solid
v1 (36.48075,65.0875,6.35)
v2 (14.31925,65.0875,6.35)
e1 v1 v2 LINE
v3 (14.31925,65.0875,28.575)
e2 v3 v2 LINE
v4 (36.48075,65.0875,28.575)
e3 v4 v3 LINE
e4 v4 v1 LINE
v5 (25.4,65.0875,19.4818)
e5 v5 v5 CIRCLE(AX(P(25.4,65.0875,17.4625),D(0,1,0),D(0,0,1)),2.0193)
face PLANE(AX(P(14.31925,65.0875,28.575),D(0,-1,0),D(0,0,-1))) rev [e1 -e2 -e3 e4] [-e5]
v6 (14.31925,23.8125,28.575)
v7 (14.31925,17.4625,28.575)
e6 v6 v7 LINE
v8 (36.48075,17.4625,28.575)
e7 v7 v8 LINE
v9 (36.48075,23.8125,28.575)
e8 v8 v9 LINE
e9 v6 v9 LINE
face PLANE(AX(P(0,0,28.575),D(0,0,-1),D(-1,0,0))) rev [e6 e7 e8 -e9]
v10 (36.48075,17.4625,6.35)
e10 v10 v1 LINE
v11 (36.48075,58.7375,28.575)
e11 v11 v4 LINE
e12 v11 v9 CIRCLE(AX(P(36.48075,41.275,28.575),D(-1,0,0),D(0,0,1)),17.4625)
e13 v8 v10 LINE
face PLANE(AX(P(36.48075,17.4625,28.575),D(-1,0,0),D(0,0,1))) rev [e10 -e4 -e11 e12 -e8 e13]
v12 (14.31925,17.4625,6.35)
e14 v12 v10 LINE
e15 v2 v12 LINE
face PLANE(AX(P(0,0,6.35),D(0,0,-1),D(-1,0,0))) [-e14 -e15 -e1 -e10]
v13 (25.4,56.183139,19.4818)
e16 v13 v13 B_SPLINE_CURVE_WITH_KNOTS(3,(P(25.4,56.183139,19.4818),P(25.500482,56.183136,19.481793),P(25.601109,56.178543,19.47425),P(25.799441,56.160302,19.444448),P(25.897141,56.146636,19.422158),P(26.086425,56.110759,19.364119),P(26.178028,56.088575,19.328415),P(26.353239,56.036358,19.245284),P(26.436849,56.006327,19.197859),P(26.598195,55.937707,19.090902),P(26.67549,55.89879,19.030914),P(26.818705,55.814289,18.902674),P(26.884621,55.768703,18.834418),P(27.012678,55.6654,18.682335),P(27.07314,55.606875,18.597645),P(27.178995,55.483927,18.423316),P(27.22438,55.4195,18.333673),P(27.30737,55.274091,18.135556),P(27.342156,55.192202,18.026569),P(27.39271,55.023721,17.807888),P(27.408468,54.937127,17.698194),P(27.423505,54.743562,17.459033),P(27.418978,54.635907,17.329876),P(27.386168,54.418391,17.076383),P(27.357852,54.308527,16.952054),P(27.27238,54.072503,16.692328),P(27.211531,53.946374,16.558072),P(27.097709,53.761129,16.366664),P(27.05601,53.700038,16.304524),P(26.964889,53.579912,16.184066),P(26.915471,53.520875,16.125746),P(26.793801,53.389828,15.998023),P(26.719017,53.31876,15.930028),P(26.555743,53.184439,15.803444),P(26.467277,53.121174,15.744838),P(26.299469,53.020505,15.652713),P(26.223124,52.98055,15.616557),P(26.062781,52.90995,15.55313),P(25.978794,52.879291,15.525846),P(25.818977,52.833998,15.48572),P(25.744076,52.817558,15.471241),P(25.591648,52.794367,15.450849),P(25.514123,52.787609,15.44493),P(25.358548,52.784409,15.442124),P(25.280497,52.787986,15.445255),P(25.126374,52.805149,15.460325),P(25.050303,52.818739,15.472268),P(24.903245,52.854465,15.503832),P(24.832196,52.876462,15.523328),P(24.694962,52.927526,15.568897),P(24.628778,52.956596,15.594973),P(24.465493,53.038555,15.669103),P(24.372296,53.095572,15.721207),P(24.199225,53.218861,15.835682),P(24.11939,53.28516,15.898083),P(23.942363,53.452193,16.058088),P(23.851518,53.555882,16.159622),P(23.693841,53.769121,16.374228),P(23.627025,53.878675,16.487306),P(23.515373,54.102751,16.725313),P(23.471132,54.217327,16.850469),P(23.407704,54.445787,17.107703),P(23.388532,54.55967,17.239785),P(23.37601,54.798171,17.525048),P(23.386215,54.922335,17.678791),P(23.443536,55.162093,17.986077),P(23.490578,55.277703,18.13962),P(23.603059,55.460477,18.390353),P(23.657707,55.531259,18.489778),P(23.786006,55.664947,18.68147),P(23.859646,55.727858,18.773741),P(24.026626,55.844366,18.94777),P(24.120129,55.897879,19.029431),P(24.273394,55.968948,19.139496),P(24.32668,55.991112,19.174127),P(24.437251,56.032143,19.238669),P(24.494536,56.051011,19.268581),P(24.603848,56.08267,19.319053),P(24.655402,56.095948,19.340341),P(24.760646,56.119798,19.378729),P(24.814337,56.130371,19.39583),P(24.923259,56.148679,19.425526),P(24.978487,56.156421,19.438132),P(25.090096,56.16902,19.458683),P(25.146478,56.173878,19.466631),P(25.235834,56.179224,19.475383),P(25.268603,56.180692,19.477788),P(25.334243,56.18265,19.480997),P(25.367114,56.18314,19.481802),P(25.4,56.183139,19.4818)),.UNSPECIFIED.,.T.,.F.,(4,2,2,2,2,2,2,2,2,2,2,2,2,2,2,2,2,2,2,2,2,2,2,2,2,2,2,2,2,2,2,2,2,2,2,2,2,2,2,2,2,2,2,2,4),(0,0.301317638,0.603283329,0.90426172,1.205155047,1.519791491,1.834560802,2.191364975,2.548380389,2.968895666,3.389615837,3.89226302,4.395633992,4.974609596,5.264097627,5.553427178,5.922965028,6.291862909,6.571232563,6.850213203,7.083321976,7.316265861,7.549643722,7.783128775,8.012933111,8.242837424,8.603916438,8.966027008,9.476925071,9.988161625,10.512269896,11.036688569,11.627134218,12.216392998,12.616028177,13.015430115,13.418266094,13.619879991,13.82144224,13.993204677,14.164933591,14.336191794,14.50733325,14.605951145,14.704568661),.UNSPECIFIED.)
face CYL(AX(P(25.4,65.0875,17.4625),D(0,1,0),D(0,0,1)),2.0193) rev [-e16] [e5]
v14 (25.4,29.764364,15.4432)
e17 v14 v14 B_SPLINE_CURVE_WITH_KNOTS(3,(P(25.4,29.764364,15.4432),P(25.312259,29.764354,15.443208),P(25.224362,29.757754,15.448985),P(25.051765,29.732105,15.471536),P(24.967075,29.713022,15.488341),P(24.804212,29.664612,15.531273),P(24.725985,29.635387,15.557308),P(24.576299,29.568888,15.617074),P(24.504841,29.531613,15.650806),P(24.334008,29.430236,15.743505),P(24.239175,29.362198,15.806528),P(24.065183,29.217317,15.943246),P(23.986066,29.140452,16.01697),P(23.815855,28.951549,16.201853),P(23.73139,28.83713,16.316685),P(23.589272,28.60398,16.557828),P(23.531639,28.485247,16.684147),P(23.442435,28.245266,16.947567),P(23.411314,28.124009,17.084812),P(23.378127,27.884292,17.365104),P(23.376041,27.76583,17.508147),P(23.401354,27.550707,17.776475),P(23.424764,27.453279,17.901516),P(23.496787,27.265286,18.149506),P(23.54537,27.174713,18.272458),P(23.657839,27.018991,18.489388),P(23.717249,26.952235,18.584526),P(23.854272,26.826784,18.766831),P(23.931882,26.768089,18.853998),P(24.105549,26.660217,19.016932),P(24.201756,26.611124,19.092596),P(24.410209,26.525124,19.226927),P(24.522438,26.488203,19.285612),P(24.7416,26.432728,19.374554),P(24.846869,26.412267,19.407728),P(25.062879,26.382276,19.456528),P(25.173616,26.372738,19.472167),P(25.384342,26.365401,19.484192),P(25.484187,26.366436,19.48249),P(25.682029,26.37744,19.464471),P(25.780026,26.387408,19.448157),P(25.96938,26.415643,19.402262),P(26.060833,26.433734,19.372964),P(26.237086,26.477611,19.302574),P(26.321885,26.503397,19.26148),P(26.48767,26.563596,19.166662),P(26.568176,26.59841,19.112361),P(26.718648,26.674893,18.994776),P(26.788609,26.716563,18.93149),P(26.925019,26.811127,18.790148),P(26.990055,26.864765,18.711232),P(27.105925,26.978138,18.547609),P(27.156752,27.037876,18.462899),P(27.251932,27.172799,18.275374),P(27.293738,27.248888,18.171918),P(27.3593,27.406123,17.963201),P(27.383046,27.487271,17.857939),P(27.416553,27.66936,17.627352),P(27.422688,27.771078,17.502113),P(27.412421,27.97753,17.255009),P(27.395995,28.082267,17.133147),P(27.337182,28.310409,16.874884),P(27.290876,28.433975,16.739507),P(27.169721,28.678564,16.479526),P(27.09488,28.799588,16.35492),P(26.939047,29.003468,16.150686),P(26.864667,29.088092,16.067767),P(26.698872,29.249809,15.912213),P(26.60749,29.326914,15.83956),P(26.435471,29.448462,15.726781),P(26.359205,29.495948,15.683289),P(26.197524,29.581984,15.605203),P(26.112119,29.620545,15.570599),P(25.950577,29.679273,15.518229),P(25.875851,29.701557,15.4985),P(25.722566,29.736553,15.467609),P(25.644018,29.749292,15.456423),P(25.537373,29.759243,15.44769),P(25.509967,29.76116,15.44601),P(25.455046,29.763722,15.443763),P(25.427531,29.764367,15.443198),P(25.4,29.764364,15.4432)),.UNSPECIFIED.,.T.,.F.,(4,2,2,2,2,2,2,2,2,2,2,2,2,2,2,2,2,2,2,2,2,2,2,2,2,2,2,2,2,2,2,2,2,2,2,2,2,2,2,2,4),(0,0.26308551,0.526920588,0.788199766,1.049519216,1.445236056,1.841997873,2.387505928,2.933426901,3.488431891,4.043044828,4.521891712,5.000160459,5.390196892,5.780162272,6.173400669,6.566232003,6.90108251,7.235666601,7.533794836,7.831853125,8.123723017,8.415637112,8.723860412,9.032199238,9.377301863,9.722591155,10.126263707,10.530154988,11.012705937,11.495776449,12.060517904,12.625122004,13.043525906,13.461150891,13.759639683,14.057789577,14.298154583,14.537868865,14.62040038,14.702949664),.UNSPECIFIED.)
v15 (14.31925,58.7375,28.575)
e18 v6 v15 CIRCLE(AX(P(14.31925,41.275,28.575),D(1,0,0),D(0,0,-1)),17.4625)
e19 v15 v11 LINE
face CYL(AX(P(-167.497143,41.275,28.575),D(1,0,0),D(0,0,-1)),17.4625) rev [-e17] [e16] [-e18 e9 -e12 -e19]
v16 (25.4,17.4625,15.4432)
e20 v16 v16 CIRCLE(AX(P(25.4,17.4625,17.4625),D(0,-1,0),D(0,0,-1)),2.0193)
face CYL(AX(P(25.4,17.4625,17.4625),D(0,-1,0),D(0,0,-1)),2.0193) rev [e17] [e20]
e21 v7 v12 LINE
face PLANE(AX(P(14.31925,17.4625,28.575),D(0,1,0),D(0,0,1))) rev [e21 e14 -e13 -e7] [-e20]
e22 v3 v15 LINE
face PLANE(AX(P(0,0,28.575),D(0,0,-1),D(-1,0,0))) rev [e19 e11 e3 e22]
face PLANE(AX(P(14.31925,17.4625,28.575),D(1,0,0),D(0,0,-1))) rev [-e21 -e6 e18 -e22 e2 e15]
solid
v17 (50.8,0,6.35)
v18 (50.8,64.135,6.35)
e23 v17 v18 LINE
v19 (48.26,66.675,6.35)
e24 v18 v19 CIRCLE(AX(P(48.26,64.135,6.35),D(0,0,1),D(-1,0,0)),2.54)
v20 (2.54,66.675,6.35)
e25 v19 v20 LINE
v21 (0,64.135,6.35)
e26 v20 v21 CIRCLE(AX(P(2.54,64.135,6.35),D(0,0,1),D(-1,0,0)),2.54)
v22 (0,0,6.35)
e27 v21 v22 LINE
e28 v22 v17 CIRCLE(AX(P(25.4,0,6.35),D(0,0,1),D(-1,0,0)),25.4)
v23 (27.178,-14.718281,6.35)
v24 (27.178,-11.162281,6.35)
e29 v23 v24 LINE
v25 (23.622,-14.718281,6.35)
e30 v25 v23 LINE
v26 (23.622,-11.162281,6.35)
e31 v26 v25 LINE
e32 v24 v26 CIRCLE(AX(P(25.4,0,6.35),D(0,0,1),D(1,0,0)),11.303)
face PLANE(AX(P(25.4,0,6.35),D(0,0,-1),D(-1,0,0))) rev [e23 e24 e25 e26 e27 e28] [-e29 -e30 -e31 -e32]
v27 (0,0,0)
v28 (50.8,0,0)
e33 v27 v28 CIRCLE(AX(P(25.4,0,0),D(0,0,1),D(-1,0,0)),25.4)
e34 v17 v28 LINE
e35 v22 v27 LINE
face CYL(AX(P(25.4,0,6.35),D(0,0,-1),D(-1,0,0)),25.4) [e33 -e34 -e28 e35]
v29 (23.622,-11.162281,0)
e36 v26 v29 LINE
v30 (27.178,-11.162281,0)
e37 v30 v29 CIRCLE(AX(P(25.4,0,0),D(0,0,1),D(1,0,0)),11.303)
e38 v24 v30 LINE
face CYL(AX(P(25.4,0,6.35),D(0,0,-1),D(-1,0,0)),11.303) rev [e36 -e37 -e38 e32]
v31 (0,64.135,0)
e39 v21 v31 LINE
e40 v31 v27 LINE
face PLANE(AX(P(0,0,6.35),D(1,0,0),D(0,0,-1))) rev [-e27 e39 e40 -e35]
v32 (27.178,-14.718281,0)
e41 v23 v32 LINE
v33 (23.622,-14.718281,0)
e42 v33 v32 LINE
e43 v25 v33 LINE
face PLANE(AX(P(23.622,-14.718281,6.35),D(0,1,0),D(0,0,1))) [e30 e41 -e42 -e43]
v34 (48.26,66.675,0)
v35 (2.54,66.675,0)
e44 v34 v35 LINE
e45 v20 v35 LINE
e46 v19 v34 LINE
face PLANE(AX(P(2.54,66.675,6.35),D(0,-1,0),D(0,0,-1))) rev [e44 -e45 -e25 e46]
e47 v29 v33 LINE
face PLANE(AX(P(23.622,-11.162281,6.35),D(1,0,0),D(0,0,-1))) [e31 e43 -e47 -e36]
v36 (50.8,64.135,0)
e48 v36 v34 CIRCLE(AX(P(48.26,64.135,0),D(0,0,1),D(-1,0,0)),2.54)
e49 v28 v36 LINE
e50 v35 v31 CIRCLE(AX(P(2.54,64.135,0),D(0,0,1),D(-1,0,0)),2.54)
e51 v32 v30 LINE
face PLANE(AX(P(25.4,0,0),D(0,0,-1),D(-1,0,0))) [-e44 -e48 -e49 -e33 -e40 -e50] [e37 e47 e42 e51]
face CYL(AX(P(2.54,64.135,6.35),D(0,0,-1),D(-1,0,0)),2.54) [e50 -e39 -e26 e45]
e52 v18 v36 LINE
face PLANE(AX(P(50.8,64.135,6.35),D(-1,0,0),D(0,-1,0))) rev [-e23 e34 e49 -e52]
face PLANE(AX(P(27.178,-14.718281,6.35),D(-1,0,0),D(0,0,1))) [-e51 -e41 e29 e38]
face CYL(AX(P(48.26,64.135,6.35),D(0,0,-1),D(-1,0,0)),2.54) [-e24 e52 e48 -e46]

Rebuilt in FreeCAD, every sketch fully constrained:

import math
import FreeCAD as App
import Part
import Sketcher
Q = App.Units.Quantity


def add_polygon(sketch, points):
    """Adds a closed chain of lines whose ends are joined by coincident constraints."""
    first, n = sketch.GeometryCount, len(points)
    for a, b in zip(points, points[1:] + points[:1]):
        sketch.addGeometry(Part.LineSegment(App.Vector(*a, 0), App.Vector(*b, 0)), False)
    for i in range(n):
        sketch.addConstraint(Sketcher.Constraint("Coincident", first + i, 2, first + (i + 1) % n, 1))

doc = App.newDocument("Part")
body = doc.addObject("PartDesign::Body", "Body")

# Sketch on XY plane
sketch1 = doc.addObject("Sketcher::SketchObject", "Sketch")
body.addObject(sketch1)
sketch1.AttachmentSupport = (doc.XY_Plane, [""])
sketch1.MapMode = "FlatFace"
sketch1.addGeometry([
    Part.LineSegment(App.Vector(0, 64.1, 0), App.Vector(0, 0, 0)),  # 0
    Part.ArcOfCircle(Part.Circle(App.Vector(25.4, 0, 0), App.Vector(0, 0, 1), 25.4), math.radians(180), math.radians(360)),  # 1
    Part.LineSegment(App.Vector(50.8, 0, 0), App.Vector(50.8, 64.1, 0)),  # 2
    Part.ArcOfCircle(Part.Circle(App.Vector(48.3, 64.1, 0), App.Vector(0, 0, 1), 2.5), math.radians(0), math.radians(90)),  # 3
    Part.LineSegment(App.Vector(48.3, 66.7, 0), App.Vector(2.5, 66.7, 0)),  # 4
    Part.ArcOfCircle(Part.Circle(App.Vector(2.5, 64.1, 0), App.Vector(0, 0, 1), 2.5), math.radians(90), math.radians(180)),  # 5
    Part.ArcOfCircle(Part.Circle(App.Vector(25.4, 0, 0), App.Vector(0, 0, 1), 11.3), math.radians(-81), math.radians(261)),  # 6
    Part.LineSegment(App.Vector(27.2, -11.2, 0), App.Vector(27.2, -14.7, 0)),  # 7
    Part.LineSegment(App.Vector(27.2, -14.7, 0), App.Vector(23.6, -14.7, 0)),  # 8
    Part.LineSegment(App.Vector(23.6, -14.7, 0), App.Vector(23.6, -11.2, 0)),  # 9
], False)
sketch1.addConstraint([
    Sketcher.Constraint("Tangent", 0, 2, 1, 1),
    Sketcher.Constraint("Tangent", 1, 2, 2, 1),
    Sketcher.Constraint("Tangent", 2, 2, 3, 1),
    Sketcher.Constraint("Tangent", 3, 2, 4, 1),
    Sketcher.Constraint("Tangent", 4, 2, 5, 1),
    Sketcher.Constraint("Tangent", 5, 2, 0, 1),
    Sketcher.Constraint("Coincident", 6, 1, 7, 1),
    Sketcher.Constraint("Coincident", 7, 2, 8, 1),
    Sketcher.Constraint("Coincident", 8, 2, 9, 1),
    Sketcher.Constraint("Coincident", 9, 2, 6, 2),
    Sketcher.Constraint("Vertical", 0),
    Sketcher.Constraint("Vertical", 2),
    Sketcher.Constraint("Horizontal", 4),
    Sketcher.Constraint("Vertical", 7),
    Sketcher.Constraint("Horizontal", 8),
    Sketcher.Constraint("Vertical", 9),
    Sketcher.Constraint("Coincident", 0, 2, -1, 1),
    Sketcher.Constraint("Coincident", 6, 3, 1, 3),
    Sketcher.Constraint("Equal", 3, 5),
    Sketcher.Constraint("Horizontal", 6, 1, 9, 2),
    Sketcher.Constraint("Equal", 8, 7),
    Sketcher.Constraint("Radius", 1, Q("1 in")),
    Sketcher.Constraint("Radius", 3, Q("0.1 in")),
    Sketcher.Constraint("Radius", 6, Q("0.445 in")),
    Sketcher.Constraint("DistanceX", 8, 2, 8, 1, Q("0.14 in")),
    Sketcher.Constraint("DistanceY", 0, 2, 0, 1, Q("2.525 in")),
])
pad1 = doc.addObject("PartDesign::Pad", "Pad")
body.addObject(pad1)
pad1.Profile = sketch1
pad1.Length = Q("0.25 in")
body2 = doc.addObject("PartDesign::Body", "Body001")

# Sketch on XY plane
sketch2 = doc.addObject("Sketcher::SketchObject", "Sketch001")
body2.addObject(sketch2)
sketch2.AttachmentSupport = (doc.getObject("XY_Plane001"), [""])
sketch2.MapMode = "FlatFace"
sketch2.AttachmentOffset = App.Placement(App.Vector(0, 0, 0.25 * 25.4), App.Rotation())
add_polygon(sketch2, [(14, 65), (14, 17), (36, 17), (36, 65)])  # lines 0-3
sketch2.addConstraint([
    Sketcher.Constraint("Vertical", 0),
    Sketcher.Constraint("Horizontal", 1),
    Sketcher.Constraint("Vertical", 2),
    Sketcher.Constraint("Horizontal", 3),
    Sketcher.Constraint("DistanceY", 0, 2, 0, 1, Q("1.875 in")),
    Sketcher.Constraint("DistanceX", 1, 1, 1, 2, Q("0.8725 in")),
    Sketcher.Constraint("DistanceY", -1, 1, 0, 2, Q("0.6875 in")),
    Sketcher.Constraint("DistanceX", -1, 1, 0, 2, 14.31925),
])
pad2 = doc.addObject("PartDesign::Pad", "Pad001")
body2.addObject(pad2)
pad2.Profile = sketch2
pad2.Length = Q("0.875 in")

# Sketch on YZ plane
sketch3 = doc.addObject("Sketcher::SketchObject", "Sketch002")
body2.addObject(sketch3)
sketch3.AttachmentSupport = (doc.getObject("YZ_Plane001"), [""])
sketch3.MapMode = "FlatFace"
sketch3.AttachmentOffset = App.Placement(App.Vector(0, 0, 14.31925), App.Rotation())
sketch3.addGeometry([
    Part.ArcOfCircle(Part.Circle(App.Vector(41, 29, 0), App.Vector(0, 0, 1), 17), math.radians(180), math.radians(360)),
    Part.LineSegment(App.Vector(24, 29, 0), App.Vector(24, 592, 0)),
    Part.LineSegment(App.Vector(24, 592, 0), App.Vector(59, 592, 0)),
    Part.LineSegment(App.Vector(59, 592, 0), App.Vector(59, 29, 0)),
], False)
sketch3.addConstraint([
    Sketcher.Constraint("Tangent", 0, 1, 1, 1),
    Sketcher.Constraint("Coincident", 1, 2, 2, 1),
    Sketcher.Constraint("Coincident", 2, 2, 3, 1),
    Sketcher.Constraint("Tangent", 3, 2, 0, 2),
    Sketcher.Constraint("Vertical", 1),
    Sketcher.Constraint("Horizontal", 2),
    Sketcher.Constraint("Vertical", 3),
    Sketcher.Constraint("Radius", 0, Q("0.6875 in")),
    Sketcher.Constraint("DistanceX", -1, 1, 0, 3, Q("1.625 in")),
    Sketcher.Constraint("DistanceY", -1, 1, 0, 3, Q("1.125 in")),
    Sketcher.Constraint("DistanceY", 1, 1, 1, 2, 563.144805),
])
pocket1 = doc.addObject("PartDesign::Pocket", "Pocket")
body2.addObject(pocket1)
pocket1.Profile = sketch3
pocket1.Type = "ThroughAll"
pocket1.Midplane = True

# Sketch on YZ plane
sketch4 = doc.addObject("Sketcher::SketchObject", "Sketch003")
body2.addObject(sketch4)
sketch4.AttachmentSupport = (doc.getObject("YZ_Plane001"), [""])
sketch4.MapMode = "FlatFace"
sketch4.AttachmentOffset = App.Placement(App.Vector(0, 0, 1 * 25.4), App.Rotation())
add_polygon(sketch4, [(41.3, 17.5), (65.1, 17.5), (65.1, 19.5), (41.3, 19.5)])  # lines 0-3
sketch4.addGeometry(Part.LineSegment(App.Vector(65.1, 17.5, 0), App.Vector(41.3, 17.5, 0)), True)  # axis
sketch4.addConstraint([
    Sketcher.Constraint("Horizontal", 0),
    Sketcher.Constraint("Vertical", 1),
    Sketcher.Constraint("Horizontal", 2),
    Sketcher.Constraint("Vertical", 3),
    Sketcher.Constraint("Horizontal", 4),
    Sketcher.Constraint("Coincident", 4, 1, 0, 2),
    Sketcher.Constraint("Vertical", 2, 2, 4, 2),
    Sketcher.Constraint("DistanceX", 0, 1, 0, 2, Q("0.9375 in")),
    Sketcher.Constraint("DistanceY", 1, 1, 1, 2, Q("0.0795 in")),
    Sketcher.Constraint("DistanceX", -1, 1, 0, 2, Q("2.5625 in")),
    Sketcher.Constraint("DistanceY", -1, 1, 0, 2, Q("0.6875 in")),
])
groove = doc.addObject("PartDesign::Groove", "Groove")
body2.addObject(groove)
groove.Profile = sketch4
groove.ReferenceAxis = (sketch4, ["Axis0"])
groove.Angle = 360

# Sketch on YZ plane
sketch5 = doc.addObject("Sketcher::SketchObject", "Sketch004")
body2.addObject(sketch5)
sketch5.AttachmentSupport = (doc.getObject("YZ_Plane001"), [""])
sketch5.MapMode = "FlatFace"
sketch5.AttachmentOffset = App.Placement(App.Vector(0, 0, 1 * 25.4), App.Rotation())
add_polygon(sketch5, [(58.7, 17.5), (17.5, 17.5), (17.5, 15.4), (58.7, 15.4)])  # lines 0-3
sketch5.addGeometry(Part.LineSegment(App.Vector(17.5, 17.5, 0), App.Vector(58.7, 17.5, 0)), True)  # axis
sketch5.addConstraint([
    Sketcher.Constraint("Horizontal", 0),
    Sketcher.Constraint("Vertical", 1),
    Sketcher.Constraint("Horizontal", 2),
    Sketcher.Constraint("Vertical", 3),
    Sketcher.Constraint("Horizontal", 4),
    Sketcher.Constraint("Coincident", 4, 1, 0, 2),
    Sketcher.Constraint("Vertical", 2, 2, 4, 2),
    Sketcher.Constraint("DistanceY", 1, 2, 1, 1, Q("0.0795 in")),
    Sketcher.Constraint("DistanceX", -1, 1, 0, 2, Q("0.6875 in")),
    Sketcher.Constraint("DistanceY", -1, 1, 0, 2, Q("0.6875 in")),
    Sketcher.Constraint("DistanceX", 0, 2, 0, 1, 41.276),
])
groove2 = doc.addObject("PartDesign::Groove", "Groove001")
body2.addObject(groove2)
groove2.Profile = sketch5
groove2.ReferenceAxis = (sketch5, ["Axis0"])
groove2.Angle = 360

doc.recompute()
